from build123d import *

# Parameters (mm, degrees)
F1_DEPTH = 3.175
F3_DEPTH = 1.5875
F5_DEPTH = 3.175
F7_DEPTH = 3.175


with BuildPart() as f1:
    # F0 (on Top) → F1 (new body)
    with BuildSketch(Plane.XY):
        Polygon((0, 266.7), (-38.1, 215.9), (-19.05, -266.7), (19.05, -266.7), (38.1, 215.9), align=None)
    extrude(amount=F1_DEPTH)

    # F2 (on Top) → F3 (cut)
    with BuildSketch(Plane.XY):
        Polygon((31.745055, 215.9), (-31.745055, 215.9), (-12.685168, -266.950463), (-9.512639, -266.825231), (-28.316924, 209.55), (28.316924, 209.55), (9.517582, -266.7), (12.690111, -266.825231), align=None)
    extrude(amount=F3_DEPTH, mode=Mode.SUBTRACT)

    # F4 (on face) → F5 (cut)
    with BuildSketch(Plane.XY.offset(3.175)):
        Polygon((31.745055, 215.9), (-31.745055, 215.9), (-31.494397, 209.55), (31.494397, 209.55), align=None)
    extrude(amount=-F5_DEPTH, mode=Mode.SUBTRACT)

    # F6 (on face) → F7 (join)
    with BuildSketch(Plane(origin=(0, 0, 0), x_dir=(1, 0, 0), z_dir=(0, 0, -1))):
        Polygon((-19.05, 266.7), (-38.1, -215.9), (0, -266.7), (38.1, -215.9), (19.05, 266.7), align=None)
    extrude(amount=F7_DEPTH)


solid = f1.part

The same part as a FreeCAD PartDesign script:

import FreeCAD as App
import Part
import Sketcher
Q = App.Units.Quantity


def add_polygon(sketch, points):
    """Adds a closed chain of lines whose ends are joined by coincident constraints."""
    first, n = sketch.GeometryCount, len(points)
    for a, b in zip(points, points[1:] + points[:1]):
        sketch.addGeometry(Part.LineSegment(App.Vector(*a, 0), App.Vector(*b, 0)), False)
    for i in range(n):
        sketch.addConstraint(Sketcher.Constraint("Coincident", first + i, 2, first + (i + 1) % n, 1))

doc = App.newDocument("Part")
body = doc.addObject("PartDesign::Body", "Body")

sketch1 = body.newObject("Sketcher::SketchObject", "Sketch")
sketch1.AttachmentSupport = (doc.getObject("XY_Plane"), [""])
sketch1.MapMode = "FlatFace"
add_polygon(sketch1, [(0, 267), (-38, 216), (-19, -267), (19, -267), (38, 216)])
sketch1.addConstraint(Sketcher.Constraint("Horizontal", 2))
sketch1.addConstraint(Sketcher.Constraint("Symmetric", 0, 2, 3, 2, -2))
sketch1.addConstraint(Sketcher.Constraint("PointOnObject", 4, 2, -2))
sketch1.addConstraint(Sketcher.Constraint("Equal", 1, 3))
sketch1.addConstraint(Sketcher.Constraint("DistanceX", 2, 1, 2, 2, Q("1.5 in")))
sketch1.addConstraint(Sketcher.Constraint("DistanceY", 1, 2, 0, 2, Q("19 in")))
sketch1.addConstraint(Sketcher.Constraint("DistanceX", 0, 2, 3, 2, Q("3 in")))
sketch1.addConstraint(Sketcher.Constraint("DistanceY", 0, 2, 4, 2, Q("2 in")))
sketch1.addConstraint(Sketcher.Constraint("DistanceY", -1, 1, 0, 2, Q("8.5 in")))
pad1 = body.newObject("PartDesign::Pad", "Pad")
pad1.Profile = sketch1
pad1.Length = Q("0.125 in")

sketch2 = body.newObject("Sketcher::SketchObject", "Sketch001")
sketch2.AttachmentSupport = (doc.getObject("XY_Plane"), [""])
sketch2.MapMode = "FlatFace"
add_polygon(sketch2, [(31.7, 215.9), (-31.7, 215.9), (-12.7, -267), (-9.5, -266.8), (-28.3, 209.6), (28.3, 209.6), (9.5, -266.7), (12.7, -266.8)])
sketch2.addConstraint(Sketcher.Constraint("Horizontal", 0))
sketch2.addConstraint(Sketcher.Constraint("Horizontal", 4))
sketch2.addConstraint(Sketcher.Constraint("Perpendicular", 1, 2))
sketch2.addConstraint(Sketcher.Constraint("Perpendicular", 2, 3))
sketch2.addConstraint(Sketcher.Constraint("Perpendicular", 5, 6))
sketch2.addConstraint(Sketcher.Constraint("Perpendicular", 6, 7))
sketch2.addConstraint(Sketcher.Constraint("Horizontal", 2, 2, 6, 2))
sketch2.addConstraint(Sketcher.Constraint("Equal", 2, 6))
sketch2.addConstraint(Sketcher.Constraint("DistanceY", 5, 2, 0, 2, Q("19 in")))
sketch2.addConstraint(Sketcher.Constraint("DistanceY", -1, 1, 0, 2, Q("8.5 in")))
sketch2.addConstraint(Sketcher.Constraint("DistanceY", -1, 1, 3, 2, Q("8.25 in")))
sketch2.addConstraint(Sketcher.Constraint("Distance", 2, Q("0.125 in")))
sketch2.addConstraint(Sketcher.Constraint("Distance", 1, 483.226499))
sketch2.addConstraint(Sketcher.Constraint("DistanceX", 0, 2, 0, 1, 63.49011))
sketch2.addConstraint(Sketcher.Constraint("Distance", 7, 483.101169))
sketch2.addConstraint(Sketcher.Constraint("DistanceX", 1, 2, -1, 1, 12.685168))
pocket1 = body.newObject("PartDesign::Pocket", "Pocket")
pocket1.Profile = sketch2
pocket1.Length = Q("0.0625 in")
pocket1.Reversed = True

sketch3 = body.newObject("Sketcher::SketchObject", "Sketch002")
sketch3.AttachmentSupport = (doc.getObject("XY_Plane"), [""])
sketch3.MapMode = "FlatFace"
sketch3.AttachmentOffset = App.Placement(App.Vector(0, 0, 0.125 * 25.4), App.Rotation())
add_polygon(sketch3, [(32, 216), (-32, 216), (-31, 210), (31, 210)])
sketch3.addConstraint(Sketcher.Constraint("Horizontal", 0))
sketch3.addConstraint(Sketcher.Constraint("Horizontal", 2))
sketch3.addConstraint(Sketcher.Constraint("Equal", 1, 3))
sketch3.addConstraint(Sketcher.Constraint("DistanceY", -1, 1, 0, 2, Q("8.5 in")))
sketch3.addConstraint(Sketcher.Constraint("DistanceY", -1, 1, 1, 2, Q("8.25 in")))
sketch3.addConstraint(Sketcher.Constraint("DistanceX", 0, 2, 0, 1, 63.49011))
sketch3.addConstraint(Sketcher.Constraint("DistanceX", 2, 1, 2, 2, 62.988794))
sketch3.addConstraint(Sketcher.Constraint("DistanceX", 0, 2, -1, 1, 31.745055))
pocket2 = body.newObject("PartDesign::Pocket", "Pocket001")
pocket2.Profile = sketch3
pocket2.Length = Q("0.125 in")

sketch4 = body.newObject("Sketcher::SketchObject", "Sketch003")
sketch4.AttachmentSupport = (doc.getObject("XY_Plane"), [""])
sketch4.MapMode = "FlatFace"
add_polygon(sketch4, [(-19, -267), (-38, 216), (0, 267), (38, 216), (19, -267)])
sketch4.addConstraint(Sketcher.Constraint("Horizontal", 4))
sketch4.addConstraint(Sketcher.Constraint("Symmetric", 0, 2, 2, 2, -2))
sketch4.addConstraint(Sketcher.Constraint("PointOnObject", 1, 2, -2))
sketch4.addConstraint(Sketcher.Constraint("Equal", 0, 3))
sketch4.addConstraint(Sketcher.Constraint("DistanceX", 4, 2, 4, 1, Q("1.5 in")))
sketch4.addConstraint(Sketcher.Constraint("DistanceY", 0, 2, 1, 2, Q("2 in")))
sketch4.addConstraint(Sketcher.Constraint("DistanceX", 0, 2, 2, 2, Q("3 in")))
sketch4.addConstraint(Sketcher.Constraint("DistanceY", 3, 2, 2, 2, Q("19 in")))
sketch4.addConstraint(Sketcher.Constraint("DistanceY", -1, 1, 0, 2, Q("8.5 in")))
pad2 = body.newObject("PartDesign::Pad", "Pad001")
pad2.Profile = sketch4
pad2.Length = Q("0.125 in")
pad2.Reversed = True

doc.recompute()
